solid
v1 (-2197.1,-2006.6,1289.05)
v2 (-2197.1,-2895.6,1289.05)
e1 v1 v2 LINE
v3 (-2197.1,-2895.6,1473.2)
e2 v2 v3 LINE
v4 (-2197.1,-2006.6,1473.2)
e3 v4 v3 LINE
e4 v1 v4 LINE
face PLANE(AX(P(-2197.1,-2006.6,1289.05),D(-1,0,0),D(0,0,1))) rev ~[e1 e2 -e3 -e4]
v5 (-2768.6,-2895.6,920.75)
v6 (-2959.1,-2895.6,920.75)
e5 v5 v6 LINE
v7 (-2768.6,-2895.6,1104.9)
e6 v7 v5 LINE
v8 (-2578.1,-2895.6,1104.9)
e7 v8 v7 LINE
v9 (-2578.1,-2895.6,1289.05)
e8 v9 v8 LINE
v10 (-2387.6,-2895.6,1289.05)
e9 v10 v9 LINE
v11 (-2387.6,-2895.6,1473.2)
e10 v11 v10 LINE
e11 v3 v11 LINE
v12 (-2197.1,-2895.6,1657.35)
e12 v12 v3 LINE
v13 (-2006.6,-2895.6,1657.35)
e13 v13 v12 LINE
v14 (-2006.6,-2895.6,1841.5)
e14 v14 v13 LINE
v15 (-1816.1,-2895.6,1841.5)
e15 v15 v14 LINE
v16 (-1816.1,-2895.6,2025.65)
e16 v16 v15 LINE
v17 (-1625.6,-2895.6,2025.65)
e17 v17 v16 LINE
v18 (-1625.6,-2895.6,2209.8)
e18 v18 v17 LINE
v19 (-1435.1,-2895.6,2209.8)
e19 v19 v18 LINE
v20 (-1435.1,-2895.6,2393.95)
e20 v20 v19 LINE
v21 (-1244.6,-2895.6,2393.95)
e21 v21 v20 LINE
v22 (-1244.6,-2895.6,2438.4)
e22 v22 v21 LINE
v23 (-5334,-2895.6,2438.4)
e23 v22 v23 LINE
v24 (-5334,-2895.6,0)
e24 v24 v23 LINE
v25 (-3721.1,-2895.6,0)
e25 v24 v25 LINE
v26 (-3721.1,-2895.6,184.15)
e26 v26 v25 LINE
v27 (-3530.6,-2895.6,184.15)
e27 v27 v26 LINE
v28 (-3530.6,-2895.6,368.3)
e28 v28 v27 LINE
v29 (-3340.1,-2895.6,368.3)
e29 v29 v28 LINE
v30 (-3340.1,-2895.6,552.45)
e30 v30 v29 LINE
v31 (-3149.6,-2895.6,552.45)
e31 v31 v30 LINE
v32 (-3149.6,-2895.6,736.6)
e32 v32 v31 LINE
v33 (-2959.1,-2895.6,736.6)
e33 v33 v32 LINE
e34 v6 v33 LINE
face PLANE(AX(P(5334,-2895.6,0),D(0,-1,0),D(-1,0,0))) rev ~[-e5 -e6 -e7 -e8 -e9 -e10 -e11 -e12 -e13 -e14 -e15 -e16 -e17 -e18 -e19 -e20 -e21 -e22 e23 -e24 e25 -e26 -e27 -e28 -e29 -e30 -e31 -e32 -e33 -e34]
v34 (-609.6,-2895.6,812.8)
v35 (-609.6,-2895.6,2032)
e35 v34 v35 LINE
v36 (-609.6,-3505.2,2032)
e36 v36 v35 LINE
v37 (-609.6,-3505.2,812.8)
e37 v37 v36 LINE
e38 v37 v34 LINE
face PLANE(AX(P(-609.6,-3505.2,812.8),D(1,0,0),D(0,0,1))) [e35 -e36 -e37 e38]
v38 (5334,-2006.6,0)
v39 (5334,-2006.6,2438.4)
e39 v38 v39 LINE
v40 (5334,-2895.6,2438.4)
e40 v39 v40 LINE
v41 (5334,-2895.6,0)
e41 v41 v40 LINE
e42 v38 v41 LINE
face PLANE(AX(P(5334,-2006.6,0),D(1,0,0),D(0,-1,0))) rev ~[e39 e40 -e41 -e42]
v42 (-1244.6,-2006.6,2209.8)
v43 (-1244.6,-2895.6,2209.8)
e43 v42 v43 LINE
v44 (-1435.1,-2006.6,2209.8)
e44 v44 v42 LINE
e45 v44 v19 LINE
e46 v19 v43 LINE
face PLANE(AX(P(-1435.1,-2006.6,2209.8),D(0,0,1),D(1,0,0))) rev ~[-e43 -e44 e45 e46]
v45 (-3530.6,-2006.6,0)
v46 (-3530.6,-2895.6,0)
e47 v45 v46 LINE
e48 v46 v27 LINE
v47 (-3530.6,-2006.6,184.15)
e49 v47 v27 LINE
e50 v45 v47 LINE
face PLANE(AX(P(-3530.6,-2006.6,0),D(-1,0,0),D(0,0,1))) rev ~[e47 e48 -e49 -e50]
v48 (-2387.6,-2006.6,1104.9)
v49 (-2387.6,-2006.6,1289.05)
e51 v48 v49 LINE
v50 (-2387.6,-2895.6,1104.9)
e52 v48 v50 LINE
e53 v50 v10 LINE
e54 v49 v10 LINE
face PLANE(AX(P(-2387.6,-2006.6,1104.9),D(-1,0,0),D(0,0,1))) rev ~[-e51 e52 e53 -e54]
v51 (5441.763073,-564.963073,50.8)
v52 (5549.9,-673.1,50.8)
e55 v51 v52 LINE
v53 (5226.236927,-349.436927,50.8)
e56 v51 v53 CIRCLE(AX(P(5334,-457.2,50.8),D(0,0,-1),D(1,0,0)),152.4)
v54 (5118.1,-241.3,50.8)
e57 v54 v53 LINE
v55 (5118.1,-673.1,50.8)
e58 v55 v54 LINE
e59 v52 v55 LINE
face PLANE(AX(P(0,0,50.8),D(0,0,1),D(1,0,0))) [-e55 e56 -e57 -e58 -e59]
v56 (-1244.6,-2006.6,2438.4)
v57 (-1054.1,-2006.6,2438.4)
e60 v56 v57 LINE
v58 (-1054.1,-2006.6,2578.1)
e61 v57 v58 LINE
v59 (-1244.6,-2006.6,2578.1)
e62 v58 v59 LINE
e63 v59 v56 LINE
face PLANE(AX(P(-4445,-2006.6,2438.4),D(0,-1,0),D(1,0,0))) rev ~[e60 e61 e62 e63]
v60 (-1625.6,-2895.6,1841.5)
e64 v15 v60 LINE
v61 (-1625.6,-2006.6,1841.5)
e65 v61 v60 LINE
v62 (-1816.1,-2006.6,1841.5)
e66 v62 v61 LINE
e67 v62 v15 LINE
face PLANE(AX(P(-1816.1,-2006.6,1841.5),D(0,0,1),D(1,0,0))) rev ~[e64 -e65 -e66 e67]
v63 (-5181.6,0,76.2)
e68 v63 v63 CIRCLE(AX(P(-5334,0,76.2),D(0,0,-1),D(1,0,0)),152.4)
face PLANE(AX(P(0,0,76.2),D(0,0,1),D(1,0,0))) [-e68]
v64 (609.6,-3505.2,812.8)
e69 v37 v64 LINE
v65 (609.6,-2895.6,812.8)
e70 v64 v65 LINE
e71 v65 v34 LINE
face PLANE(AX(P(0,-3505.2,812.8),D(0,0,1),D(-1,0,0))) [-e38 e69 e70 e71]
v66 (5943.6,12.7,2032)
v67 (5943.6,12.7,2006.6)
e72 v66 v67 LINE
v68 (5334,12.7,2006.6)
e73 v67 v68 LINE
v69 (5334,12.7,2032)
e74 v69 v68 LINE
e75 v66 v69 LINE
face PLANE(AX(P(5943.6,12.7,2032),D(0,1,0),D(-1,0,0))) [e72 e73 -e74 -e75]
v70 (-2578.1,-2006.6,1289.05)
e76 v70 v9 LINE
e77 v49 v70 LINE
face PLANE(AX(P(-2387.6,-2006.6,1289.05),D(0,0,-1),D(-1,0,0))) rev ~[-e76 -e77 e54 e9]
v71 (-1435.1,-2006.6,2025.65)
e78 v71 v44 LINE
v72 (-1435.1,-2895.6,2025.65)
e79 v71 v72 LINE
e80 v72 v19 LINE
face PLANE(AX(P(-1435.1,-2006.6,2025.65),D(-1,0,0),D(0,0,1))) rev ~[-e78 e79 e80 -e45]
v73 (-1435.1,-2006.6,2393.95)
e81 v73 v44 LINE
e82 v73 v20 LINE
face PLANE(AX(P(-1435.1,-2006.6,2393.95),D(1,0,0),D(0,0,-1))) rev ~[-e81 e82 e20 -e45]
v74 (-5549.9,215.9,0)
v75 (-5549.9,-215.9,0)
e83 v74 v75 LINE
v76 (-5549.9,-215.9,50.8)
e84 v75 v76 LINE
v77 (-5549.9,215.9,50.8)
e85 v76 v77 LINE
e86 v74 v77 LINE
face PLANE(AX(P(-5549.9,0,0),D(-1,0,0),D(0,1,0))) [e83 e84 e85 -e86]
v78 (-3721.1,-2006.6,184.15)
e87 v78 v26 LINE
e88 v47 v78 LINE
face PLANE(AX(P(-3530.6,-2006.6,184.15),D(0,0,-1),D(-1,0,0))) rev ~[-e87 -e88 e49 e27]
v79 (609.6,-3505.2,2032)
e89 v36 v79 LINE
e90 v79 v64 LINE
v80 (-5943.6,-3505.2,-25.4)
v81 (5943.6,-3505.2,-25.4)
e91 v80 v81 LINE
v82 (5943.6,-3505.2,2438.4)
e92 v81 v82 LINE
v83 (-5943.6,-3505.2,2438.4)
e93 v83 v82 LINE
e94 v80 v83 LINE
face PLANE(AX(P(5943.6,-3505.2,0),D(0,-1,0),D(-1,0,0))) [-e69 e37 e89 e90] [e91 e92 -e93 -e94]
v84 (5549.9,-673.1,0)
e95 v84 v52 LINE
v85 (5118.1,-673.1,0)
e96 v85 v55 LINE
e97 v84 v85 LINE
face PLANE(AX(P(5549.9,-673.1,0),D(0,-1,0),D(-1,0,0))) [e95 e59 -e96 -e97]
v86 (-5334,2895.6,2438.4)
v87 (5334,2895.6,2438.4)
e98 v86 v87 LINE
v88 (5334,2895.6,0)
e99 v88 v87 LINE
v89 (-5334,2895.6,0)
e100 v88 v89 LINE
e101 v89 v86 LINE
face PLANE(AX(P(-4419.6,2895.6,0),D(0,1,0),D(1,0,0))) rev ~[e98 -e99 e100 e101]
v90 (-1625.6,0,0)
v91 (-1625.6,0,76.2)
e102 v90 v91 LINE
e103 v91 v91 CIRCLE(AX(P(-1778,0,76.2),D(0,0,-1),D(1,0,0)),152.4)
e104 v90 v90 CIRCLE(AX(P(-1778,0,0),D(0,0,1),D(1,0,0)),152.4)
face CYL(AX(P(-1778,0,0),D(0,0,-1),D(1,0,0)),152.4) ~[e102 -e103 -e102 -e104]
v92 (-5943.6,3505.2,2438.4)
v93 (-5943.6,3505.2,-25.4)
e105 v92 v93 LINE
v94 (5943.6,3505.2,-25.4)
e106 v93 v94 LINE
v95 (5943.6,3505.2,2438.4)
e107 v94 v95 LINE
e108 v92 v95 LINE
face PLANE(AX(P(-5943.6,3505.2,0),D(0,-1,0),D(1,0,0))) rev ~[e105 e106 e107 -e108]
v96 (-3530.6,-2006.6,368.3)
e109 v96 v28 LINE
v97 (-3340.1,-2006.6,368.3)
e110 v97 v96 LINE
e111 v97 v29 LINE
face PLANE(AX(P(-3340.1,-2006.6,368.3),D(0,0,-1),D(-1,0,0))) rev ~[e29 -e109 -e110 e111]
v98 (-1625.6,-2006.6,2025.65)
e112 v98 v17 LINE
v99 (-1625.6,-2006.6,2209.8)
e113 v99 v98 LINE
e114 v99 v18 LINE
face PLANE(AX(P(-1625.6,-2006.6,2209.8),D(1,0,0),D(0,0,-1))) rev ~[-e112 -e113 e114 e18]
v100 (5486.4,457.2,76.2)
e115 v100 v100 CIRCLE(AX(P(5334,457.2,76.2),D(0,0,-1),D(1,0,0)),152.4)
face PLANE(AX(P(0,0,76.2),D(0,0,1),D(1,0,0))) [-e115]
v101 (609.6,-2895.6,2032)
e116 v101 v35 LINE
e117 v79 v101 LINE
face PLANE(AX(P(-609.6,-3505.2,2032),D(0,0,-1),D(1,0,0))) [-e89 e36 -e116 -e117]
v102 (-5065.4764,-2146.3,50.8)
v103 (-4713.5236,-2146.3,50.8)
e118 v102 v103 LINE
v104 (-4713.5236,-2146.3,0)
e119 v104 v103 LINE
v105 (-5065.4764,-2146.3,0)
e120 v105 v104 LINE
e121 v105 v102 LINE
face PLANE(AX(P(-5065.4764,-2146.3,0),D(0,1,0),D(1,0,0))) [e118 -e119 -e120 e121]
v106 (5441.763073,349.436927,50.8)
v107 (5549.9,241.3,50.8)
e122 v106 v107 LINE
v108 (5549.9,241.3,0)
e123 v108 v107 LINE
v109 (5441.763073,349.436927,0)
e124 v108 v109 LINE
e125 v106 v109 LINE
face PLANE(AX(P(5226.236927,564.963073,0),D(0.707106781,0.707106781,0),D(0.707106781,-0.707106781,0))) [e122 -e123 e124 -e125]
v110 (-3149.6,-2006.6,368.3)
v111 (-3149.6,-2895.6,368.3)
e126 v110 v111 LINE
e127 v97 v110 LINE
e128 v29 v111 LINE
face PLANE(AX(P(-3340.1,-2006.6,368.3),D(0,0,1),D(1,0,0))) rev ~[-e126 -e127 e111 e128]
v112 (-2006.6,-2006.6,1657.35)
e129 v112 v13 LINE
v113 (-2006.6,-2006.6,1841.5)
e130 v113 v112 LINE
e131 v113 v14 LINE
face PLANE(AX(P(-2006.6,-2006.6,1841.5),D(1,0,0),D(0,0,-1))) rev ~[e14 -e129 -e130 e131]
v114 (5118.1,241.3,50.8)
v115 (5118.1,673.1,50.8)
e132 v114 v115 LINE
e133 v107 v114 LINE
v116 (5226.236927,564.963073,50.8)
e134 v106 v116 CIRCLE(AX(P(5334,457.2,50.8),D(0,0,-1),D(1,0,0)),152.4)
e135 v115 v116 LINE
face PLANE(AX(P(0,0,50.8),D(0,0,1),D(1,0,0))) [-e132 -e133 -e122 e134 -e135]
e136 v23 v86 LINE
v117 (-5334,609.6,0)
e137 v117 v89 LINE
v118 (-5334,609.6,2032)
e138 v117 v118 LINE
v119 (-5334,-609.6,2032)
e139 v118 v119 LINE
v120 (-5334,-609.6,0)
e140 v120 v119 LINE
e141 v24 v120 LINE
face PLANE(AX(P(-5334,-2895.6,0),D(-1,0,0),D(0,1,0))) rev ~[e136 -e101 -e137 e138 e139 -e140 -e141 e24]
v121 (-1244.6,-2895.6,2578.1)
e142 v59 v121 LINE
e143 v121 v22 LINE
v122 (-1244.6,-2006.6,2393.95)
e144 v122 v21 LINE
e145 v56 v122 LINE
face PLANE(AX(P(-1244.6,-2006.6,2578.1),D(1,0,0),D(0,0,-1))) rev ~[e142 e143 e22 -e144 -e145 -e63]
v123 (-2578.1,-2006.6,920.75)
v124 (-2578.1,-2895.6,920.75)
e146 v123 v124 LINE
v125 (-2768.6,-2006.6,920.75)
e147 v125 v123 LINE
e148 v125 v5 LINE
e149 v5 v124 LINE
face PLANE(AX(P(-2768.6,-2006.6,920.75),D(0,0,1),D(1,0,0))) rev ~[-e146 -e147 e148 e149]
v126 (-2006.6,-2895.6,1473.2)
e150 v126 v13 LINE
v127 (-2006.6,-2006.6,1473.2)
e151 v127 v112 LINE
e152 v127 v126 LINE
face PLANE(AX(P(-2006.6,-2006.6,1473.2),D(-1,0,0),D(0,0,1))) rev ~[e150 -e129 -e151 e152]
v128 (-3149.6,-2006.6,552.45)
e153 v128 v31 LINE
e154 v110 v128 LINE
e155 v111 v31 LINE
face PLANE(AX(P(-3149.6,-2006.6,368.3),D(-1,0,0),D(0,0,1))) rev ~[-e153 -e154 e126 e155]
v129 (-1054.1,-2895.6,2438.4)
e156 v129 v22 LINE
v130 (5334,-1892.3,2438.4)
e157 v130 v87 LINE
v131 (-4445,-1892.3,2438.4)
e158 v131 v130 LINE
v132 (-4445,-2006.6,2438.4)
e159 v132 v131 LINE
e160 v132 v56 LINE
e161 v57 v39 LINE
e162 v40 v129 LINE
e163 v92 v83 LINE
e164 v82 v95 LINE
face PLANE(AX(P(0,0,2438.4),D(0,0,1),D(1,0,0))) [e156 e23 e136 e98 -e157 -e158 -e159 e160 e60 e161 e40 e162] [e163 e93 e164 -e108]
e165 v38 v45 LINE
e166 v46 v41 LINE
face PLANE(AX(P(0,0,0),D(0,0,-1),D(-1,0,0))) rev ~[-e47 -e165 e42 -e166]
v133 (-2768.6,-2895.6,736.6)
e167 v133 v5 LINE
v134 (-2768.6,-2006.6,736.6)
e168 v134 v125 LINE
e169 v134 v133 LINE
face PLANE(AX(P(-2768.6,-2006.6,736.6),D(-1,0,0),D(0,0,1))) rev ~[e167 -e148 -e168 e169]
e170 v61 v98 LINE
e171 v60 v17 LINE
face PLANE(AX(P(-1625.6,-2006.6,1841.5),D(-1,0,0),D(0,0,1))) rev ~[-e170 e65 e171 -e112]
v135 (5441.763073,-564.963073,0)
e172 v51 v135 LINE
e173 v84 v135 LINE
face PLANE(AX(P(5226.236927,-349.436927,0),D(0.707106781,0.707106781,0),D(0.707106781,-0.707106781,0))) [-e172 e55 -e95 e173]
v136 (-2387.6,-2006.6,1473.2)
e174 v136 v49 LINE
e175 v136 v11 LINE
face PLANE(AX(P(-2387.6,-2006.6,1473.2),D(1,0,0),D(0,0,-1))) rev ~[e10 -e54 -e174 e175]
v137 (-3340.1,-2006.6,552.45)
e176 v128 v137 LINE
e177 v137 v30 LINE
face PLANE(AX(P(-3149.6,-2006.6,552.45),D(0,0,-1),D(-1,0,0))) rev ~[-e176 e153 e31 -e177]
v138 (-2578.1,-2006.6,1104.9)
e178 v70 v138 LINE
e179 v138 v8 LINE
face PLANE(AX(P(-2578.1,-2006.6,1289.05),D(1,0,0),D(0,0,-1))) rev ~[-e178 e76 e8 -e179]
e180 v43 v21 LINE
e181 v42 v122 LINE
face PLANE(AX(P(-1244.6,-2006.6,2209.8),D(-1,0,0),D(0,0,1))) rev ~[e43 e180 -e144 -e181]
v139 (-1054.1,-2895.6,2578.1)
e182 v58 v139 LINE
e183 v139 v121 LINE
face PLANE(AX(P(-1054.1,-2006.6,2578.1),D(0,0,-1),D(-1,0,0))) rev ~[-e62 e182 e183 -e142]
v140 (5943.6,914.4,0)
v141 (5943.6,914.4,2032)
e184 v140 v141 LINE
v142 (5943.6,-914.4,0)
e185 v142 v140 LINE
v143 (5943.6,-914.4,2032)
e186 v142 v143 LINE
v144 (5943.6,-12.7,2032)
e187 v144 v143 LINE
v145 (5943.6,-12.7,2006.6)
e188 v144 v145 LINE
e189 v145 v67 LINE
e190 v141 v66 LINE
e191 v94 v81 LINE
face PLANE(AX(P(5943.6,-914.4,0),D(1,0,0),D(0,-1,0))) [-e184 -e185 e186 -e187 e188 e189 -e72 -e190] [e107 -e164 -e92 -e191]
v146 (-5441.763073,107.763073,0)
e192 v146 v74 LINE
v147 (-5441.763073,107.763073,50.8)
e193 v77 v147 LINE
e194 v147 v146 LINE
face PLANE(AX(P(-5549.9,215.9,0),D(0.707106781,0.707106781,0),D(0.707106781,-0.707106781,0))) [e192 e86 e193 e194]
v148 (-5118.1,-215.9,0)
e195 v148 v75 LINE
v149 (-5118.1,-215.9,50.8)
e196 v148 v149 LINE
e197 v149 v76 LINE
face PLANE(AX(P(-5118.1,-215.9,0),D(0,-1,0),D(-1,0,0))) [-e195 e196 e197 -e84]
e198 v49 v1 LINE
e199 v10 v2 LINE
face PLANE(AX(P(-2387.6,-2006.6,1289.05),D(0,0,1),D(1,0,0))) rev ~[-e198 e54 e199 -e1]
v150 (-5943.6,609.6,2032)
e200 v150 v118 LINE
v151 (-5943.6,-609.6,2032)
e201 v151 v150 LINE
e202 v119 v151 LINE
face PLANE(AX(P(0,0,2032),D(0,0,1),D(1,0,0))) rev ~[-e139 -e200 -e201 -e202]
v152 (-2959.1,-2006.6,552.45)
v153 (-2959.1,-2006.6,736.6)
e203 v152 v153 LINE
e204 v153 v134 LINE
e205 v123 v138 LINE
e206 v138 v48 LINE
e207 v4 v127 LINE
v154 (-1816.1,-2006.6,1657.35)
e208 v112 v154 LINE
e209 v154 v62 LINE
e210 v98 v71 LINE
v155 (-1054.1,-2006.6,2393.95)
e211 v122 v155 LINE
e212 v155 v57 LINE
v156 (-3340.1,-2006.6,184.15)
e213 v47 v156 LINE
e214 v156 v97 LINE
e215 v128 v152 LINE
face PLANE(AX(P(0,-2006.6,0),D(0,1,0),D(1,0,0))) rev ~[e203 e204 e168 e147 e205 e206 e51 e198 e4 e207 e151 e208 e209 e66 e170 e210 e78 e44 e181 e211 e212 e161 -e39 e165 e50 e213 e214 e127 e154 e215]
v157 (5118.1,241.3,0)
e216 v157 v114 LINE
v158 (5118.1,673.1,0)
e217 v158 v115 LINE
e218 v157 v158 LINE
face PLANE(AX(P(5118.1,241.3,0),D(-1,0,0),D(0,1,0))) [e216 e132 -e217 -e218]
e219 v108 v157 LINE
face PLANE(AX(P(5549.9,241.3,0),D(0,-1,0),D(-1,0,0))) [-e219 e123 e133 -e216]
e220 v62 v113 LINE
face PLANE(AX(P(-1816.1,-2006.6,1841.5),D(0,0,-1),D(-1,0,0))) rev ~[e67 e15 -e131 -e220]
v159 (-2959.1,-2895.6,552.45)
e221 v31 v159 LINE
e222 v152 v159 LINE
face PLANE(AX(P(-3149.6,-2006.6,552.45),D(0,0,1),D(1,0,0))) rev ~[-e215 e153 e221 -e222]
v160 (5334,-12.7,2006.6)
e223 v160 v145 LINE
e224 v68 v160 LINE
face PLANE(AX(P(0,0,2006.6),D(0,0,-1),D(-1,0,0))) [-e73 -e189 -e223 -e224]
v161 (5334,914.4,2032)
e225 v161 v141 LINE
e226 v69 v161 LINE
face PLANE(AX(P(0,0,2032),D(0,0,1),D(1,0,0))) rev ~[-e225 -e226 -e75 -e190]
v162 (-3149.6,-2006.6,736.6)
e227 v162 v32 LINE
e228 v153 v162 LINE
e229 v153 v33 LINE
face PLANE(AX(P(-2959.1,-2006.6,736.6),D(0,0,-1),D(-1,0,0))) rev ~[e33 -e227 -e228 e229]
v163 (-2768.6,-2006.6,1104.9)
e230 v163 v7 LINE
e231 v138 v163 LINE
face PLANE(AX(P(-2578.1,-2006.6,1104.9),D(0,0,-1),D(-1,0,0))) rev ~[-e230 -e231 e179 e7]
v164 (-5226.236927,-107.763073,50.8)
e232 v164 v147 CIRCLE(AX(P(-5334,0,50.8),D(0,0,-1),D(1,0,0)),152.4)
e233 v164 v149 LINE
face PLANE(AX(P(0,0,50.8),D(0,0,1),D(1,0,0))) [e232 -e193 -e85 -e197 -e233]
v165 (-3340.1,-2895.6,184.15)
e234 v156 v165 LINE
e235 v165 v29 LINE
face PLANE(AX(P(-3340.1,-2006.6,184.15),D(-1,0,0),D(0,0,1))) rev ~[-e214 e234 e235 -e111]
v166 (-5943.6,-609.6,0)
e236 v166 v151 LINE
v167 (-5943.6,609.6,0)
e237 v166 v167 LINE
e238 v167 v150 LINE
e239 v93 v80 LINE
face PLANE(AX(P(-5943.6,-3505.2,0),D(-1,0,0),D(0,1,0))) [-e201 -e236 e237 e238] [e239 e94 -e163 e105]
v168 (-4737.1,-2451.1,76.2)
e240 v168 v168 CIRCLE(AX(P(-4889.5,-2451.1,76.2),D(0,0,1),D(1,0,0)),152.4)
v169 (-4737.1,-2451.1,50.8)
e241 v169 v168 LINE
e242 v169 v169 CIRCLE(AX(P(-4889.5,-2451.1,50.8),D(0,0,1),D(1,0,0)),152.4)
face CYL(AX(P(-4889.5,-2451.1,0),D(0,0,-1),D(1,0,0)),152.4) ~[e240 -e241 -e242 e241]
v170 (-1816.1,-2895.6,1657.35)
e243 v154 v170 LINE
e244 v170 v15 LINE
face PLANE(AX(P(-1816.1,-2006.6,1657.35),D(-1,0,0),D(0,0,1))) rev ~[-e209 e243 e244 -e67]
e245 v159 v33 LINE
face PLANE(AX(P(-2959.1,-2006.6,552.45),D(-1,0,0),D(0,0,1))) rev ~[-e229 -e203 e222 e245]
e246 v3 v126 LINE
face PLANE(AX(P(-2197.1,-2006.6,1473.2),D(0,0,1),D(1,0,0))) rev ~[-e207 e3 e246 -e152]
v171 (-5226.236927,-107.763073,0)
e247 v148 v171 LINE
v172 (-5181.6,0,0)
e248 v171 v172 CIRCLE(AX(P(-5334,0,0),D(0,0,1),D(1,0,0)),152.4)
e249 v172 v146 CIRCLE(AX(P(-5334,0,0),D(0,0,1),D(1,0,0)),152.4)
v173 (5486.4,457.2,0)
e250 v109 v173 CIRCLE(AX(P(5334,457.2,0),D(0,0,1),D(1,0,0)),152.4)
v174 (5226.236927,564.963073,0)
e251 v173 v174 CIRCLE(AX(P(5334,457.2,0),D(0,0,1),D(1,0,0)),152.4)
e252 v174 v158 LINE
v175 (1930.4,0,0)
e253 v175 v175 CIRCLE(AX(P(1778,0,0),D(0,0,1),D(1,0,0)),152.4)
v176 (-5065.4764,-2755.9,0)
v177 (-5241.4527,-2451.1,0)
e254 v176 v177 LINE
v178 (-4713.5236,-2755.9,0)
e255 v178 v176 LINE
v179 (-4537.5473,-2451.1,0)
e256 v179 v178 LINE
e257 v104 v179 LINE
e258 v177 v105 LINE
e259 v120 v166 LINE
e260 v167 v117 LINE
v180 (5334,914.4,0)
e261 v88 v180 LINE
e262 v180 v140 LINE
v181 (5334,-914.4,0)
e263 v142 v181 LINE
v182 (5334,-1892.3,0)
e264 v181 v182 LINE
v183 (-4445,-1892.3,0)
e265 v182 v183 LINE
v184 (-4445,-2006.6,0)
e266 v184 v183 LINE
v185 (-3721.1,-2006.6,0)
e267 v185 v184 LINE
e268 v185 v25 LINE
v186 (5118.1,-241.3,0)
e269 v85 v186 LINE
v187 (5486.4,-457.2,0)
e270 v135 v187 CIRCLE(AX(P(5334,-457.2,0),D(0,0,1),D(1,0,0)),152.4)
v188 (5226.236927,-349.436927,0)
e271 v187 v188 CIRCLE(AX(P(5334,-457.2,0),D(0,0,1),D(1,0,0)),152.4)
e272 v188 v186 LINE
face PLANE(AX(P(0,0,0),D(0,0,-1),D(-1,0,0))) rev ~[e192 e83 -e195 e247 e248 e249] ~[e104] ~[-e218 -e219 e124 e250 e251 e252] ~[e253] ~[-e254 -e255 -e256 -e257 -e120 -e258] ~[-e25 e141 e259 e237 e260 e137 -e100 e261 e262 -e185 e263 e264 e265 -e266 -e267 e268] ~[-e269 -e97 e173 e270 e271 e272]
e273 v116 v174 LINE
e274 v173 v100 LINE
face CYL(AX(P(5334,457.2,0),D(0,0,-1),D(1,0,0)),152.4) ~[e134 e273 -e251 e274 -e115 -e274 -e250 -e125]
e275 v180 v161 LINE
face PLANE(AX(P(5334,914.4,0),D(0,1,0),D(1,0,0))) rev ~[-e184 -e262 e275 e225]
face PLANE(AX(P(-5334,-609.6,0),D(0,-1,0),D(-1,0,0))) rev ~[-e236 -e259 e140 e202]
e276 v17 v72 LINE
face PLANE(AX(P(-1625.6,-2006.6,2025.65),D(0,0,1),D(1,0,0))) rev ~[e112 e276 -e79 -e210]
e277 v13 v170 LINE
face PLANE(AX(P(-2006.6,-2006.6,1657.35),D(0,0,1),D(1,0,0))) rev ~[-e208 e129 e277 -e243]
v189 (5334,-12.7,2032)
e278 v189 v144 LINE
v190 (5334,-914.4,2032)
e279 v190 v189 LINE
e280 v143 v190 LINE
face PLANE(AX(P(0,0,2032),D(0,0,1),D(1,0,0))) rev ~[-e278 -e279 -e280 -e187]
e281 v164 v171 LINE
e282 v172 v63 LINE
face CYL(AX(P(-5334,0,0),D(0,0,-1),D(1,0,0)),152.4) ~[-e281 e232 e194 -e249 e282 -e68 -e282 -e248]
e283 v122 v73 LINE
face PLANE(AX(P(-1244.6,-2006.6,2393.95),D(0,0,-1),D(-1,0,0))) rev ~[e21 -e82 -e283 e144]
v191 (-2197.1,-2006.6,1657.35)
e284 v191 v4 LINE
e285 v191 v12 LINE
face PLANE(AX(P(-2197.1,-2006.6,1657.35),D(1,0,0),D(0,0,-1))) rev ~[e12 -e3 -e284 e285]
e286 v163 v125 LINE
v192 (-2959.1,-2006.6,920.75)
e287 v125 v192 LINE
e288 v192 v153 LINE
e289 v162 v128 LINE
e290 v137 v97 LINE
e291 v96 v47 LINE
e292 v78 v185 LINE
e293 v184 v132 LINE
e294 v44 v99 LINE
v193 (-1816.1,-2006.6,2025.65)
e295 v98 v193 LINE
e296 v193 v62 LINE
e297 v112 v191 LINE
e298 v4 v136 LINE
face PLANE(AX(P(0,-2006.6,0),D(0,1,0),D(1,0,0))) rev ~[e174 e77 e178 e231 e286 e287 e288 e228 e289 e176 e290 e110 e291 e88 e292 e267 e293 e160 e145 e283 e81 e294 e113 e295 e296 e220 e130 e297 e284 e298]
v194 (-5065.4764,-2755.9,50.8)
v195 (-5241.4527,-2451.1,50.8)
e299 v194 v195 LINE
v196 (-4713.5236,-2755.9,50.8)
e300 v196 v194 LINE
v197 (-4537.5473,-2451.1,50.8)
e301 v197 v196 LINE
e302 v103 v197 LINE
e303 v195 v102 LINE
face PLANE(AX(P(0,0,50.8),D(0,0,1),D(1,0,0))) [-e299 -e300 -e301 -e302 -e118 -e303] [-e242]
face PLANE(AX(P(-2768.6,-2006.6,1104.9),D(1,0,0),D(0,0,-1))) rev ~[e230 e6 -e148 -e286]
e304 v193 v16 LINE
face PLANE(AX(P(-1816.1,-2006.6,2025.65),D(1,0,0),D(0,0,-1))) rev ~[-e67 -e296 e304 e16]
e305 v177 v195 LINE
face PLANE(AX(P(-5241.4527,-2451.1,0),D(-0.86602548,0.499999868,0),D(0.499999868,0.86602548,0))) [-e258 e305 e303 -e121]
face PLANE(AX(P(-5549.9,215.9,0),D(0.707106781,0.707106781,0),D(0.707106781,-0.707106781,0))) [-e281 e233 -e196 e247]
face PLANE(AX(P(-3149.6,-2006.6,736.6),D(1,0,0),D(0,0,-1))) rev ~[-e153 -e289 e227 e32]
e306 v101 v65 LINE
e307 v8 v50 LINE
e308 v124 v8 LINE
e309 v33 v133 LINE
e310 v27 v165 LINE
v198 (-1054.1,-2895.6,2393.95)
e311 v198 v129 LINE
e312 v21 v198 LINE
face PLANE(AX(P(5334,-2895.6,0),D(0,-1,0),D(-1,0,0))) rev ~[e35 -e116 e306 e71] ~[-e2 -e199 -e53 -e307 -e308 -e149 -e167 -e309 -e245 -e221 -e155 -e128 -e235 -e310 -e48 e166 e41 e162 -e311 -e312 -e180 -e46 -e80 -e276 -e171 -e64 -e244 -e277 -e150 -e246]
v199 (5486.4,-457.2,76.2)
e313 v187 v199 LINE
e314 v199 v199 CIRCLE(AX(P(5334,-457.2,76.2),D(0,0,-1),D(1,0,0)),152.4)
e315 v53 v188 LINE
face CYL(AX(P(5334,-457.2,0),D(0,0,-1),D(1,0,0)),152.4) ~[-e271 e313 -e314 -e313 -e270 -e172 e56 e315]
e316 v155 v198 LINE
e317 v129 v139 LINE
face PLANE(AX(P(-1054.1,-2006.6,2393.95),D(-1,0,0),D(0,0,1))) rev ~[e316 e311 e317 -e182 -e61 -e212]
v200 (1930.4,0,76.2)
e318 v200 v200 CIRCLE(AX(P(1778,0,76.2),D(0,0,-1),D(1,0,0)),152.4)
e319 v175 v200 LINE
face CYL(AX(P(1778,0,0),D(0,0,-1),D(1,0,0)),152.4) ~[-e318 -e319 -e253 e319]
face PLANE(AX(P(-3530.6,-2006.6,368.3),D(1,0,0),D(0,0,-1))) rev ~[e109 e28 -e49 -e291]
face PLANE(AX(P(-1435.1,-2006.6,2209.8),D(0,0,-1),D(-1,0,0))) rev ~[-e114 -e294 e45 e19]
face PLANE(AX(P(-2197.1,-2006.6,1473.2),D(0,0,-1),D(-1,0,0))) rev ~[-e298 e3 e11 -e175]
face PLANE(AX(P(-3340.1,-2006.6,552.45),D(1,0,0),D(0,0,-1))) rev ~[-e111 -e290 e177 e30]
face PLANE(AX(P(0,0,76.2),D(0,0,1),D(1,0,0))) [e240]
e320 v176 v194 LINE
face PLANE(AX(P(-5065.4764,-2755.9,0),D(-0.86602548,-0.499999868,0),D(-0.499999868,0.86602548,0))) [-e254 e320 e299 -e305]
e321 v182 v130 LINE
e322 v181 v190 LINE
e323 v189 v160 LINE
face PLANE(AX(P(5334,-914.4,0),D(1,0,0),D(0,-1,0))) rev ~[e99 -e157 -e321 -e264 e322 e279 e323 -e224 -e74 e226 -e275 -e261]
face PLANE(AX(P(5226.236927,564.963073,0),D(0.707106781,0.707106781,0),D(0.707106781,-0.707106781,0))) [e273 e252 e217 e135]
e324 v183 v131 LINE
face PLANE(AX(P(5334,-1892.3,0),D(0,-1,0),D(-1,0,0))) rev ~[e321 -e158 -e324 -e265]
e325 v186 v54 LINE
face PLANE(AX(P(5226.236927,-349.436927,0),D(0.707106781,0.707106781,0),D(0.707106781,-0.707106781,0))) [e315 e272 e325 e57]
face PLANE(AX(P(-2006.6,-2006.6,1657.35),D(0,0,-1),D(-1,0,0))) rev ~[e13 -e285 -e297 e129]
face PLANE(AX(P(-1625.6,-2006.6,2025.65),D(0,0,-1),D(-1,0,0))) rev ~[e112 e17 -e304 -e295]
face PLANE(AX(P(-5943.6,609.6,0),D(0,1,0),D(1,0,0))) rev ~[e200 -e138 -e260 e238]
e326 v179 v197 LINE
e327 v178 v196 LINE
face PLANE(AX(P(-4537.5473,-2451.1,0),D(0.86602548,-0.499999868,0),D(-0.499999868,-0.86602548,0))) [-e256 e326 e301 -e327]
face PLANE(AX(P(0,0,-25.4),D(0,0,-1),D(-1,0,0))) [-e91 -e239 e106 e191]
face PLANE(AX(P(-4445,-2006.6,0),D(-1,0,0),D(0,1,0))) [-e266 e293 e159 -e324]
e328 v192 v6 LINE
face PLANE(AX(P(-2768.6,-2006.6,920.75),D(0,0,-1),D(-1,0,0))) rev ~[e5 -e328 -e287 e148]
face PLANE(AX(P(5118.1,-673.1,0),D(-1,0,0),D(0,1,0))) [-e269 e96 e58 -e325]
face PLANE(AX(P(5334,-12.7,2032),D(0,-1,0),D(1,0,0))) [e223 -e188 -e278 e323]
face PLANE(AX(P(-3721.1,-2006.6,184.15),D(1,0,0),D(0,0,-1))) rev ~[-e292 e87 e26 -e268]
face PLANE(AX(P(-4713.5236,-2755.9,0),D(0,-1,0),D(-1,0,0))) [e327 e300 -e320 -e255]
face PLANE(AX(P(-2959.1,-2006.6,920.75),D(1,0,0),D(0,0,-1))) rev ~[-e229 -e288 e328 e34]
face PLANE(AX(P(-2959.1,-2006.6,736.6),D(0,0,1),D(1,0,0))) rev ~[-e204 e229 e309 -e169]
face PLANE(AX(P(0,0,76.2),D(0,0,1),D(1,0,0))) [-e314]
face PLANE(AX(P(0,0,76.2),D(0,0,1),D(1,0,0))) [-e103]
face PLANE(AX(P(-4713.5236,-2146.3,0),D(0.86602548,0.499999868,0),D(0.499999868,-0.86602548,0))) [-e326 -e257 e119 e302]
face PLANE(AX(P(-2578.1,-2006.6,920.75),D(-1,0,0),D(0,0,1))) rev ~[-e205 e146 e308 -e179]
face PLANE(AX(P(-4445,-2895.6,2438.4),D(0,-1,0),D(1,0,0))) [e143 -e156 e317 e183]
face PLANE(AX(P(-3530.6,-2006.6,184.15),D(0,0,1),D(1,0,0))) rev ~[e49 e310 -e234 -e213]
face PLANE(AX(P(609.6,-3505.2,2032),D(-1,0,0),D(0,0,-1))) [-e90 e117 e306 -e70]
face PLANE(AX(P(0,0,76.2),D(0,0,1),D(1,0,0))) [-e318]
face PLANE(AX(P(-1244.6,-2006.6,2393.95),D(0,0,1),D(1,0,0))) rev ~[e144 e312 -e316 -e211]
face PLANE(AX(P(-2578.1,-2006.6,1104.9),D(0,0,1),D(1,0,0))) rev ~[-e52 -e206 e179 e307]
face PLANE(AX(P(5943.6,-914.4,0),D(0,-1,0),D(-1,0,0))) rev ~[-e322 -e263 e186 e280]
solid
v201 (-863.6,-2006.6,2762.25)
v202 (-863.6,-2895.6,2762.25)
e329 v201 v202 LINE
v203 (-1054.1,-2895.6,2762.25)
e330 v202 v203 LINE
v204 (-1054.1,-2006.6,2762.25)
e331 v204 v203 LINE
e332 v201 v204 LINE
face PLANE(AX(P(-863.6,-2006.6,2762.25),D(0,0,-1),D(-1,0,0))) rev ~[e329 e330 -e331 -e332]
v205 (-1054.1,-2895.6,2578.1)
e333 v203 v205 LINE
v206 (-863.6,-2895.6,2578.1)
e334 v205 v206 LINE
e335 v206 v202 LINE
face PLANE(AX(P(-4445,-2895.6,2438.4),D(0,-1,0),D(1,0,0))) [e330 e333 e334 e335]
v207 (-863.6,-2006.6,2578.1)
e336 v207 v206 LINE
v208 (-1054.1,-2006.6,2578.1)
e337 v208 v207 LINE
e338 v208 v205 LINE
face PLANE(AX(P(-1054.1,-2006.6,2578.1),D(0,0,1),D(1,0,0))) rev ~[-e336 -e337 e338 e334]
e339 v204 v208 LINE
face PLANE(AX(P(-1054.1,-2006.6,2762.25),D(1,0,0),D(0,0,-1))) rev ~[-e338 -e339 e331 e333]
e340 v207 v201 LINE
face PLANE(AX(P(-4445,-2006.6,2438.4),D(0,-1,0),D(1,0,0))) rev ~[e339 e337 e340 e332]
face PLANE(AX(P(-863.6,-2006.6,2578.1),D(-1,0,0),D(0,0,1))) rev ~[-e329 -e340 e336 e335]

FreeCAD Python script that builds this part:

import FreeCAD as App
import Part
import Sketcher
Q = App.Units.Quantity


def add_polygon(sketch, points):
    """Adds a closed chain of lines whose ends are joined by coincident constraints."""
    first, n = sketch.GeometryCount, len(points)
    for a, b in zip(points, points[1:] + points[:1]):
        sketch.addGeometry(Part.LineSegment(App.Vector(*a, 0), App.Vector(*b, 0)), False)
    for i in range(n):
        sketch.addConstraint(Sketcher.Constraint("Coincident", first + i, 2, first + (i + 1) % n, 1))

doc = App.newDocument("Part")
params = doc.addObject("Spreadsheet::Sheet", "Params")
for row, (alias, value) in enumerate([
    ("sketch1_width", "24 in"),
    ("sketch1_width2", "468 in"),
    ("sketch1_height", "35 in"),
    ("sketch1_height2", "114 in"),
    ("sketch1_height3", "102 in"),
    ("pad1_length", "96 in"),
    ("sketch2_width", "468 in"),
    ("sketch2_height", "276 in"),
    ("pad2_length", "1 in"),
    ("sketch3_width", "24 in"),
    ("sketch3_height", "72 in"),
    ("sketch3_height2", "48 in"),
    ("pad3_length", "16 in"),
    ("sketch4_width", "7.5 in"),
    ("sketch4_height", "7.25 in"),
    ("pad4_length", "35 in"),
    ("sketch5_width", "48 in"),
    ("pocket1_length", "24 in"),
    ("sketch6_height", "1 in"),
    ("sketch6_width", "24 in"),
    ("pad5_length", "1 in"),
    ("sketch7_diameter", "12 in"),
    ("sketch7_width", "17 in"),
    ("pad6_length", "2 in"),
    ("sketch8_diameter", "12 in"),
    ("pad7_length", "3 in"),
], start=1):
    params.set(f"A{row}", alias)
    params.set(f"B{row}", "=" + value)
    params.setAlias(f"B{row}", alias)

body = doc.addObject("PartDesign::Body", "Body")
body.AllowCompound = True

# Sketch on XY plane
sketch1 = body.newObject("Sketcher::SketchObject", "Sketch")
sketch1.AttachmentSupport = (doc.getObject("XY_Plane"), [""])
sketch1.MapMode = "FlatFace"
add_polygon(sketch1, [(5334, -1892.3), (-4445, -1892.3), (-4445, -2006.6), (5334, -2006.6), (5334, -2895.6), (-5334, -2895.6), (-5334, -609.6), (-5943.6, -609.6), (-5943.6, -3505.2), (5943.6, -3505.2), (5943.6, -914.4), (5334, -914.4)])  # lines 0-11
add_polygon(sketch1, [(-5943.6, 3505.2), (-5943.6, 609.6), (-5334, 609.6), (-5334, 2895.6), (5334, 2895.6), (5334, 914.4), (5943.6, 914.4), (5943.6, 3505.2)])  # lines 12-19
sketch1.addConstraint([
    Sketcher.Constraint("Horizontal", 0),
    Sketcher.Constraint("Vertical", 1),
    Sketcher.Constraint("Horizontal", 2),
    Sketcher.Constraint("Vertical", 3),
    Sketcher.Constraint("Horizontal", 4),
    Sketcher.Constraint("Vertical", 5),
    Sketcher.Constraint("Horizontal", 6),
    Sketcher.Constraint("Vertical", 7),
    Sketcher.Constraint("Horizontal", 8),
    Sketcher.Constraint("Vertical", 9),
    Sketcher.Constraint("Horizontal", 10),
    Sketcher.Constraint("Vertical", 11),
    Sketcher.Constraint("Vertical", 12),
    Sketcher.Constraint("Horizontal", 13),
    Sketcher.Constraint("Vertical", 14),
    Sketcher.Constraint("Horizontal", 15),
    Sketcher.Constraint("Vertical", 16),
    Sketcher.Constraint("Horizontal", 17),
    Sketcher.Constraint("Vertical", 18),
    Sketcher.Constraint("Horizontal", 19),
    Sketcher.Constraint("Symmetric", 3, 2, 14, 2, -1, 1),
    Sketcher.Constraint("Symmetric", 7, 2, 18, 2, -1, 1),
    Sketcher.Constraint("Symmetric", 6, 2, 12, 2, -1),
    Sketcher.Constraint("Symmetric", 10, 2, 16, 2, -1),
    Sketcher.Constraint("Vertical", 3, 2, 10, 2),
    Sketcher.Constraint("Vertical", 5, 2, 13, 2),
    Sketcher.Constraint("Vertical", 9, 2, 17, 2),
    Sketcher.Constraint("DistanceX", 6, 2, 6, 1, Q("24 in")),
    Sketcher.Constraint("DistanceX", 8, 1, 8, 2, Q("468 in")),
    Sketcher.Constraint("DistanceY", 3, 2, 3, 1, Q("35 in")),
    Sketcher.Constraint("DistanceY", 7, 2, 7, 1, Q("114 in")),
    Sketcher.Constraint("DistanceY", 9, 1, 9, 2, Q("102 in")),
    Sketcher.Constraint("DistanceY", 1, 2, 1, 1, Q("4.5 in")),
    Sketcher.Constraint("DistanceY", 3, 2, -1, 1, Q("114 in")),
    Sketcher.Constraint("DistanceY", 5, 2, -1, 1, Q("24 in")),
    Sketcher.Constraint("DistanceX", 4, 2, 1, 2, Q("35 in")),
])
sketch1.setExpression("Constraints[47]", "Params.sketch1_width")
sketch1.setExpression("Constraints[48]", "Params.sketch1_width2")
sketch1.setExpression("Constraints[49]", "Params.sketch1_height")
sketch1.setExpression("Constraints[50]", "Params.sketch1_height2")
sketch1.setExpression("Constraints[51]", "Params.sketch1_height3")
pad1 = body.newObject("PartDesign::Pad", "Pad")
pad1.Profile = sketch1
pad1.setExpression("Length", "Params.pad1_length")

# Sketch on XY plane
sketch2 = body.newObject("Sketcher::SketchObject", "Sketch001")
sketch2.AttachmentSupport = (doc.getObject("XY_Plane"), [""])
sketch2.MapMode = "FlatFace"
add_polygon(sketch2, [(-5943.6, 3505.2), (5943.6, 3505.2), (5943.6, -3505.2), (-5943.6, -3505.2)])  # lines 0-3
sketch2.addConstraint([
    Sketcher.Constraint("Horizontal", 0),
    Sketcher.Constraint("Vertical", 1),
    Sketcher.Constraint("Horizontal", 2),
    Sketcher.Constraint("Vertical", 3),
    Sketcher.Constraint("Symmetric", 0, 2, 2, 2, -1, 1),
    Sketcher.Constraint("DistanceX", 0, 1, 0, 2, Q("468 in")),
    Sketcher.Constraint("DistanceY", 1, 2, 1, 1, Q("276 in")),
])
sketch2.setExpression("Constraints[9]", "Params.sketch2_width")
sketch2.setExpression("Constraints[10]", "Params.sketch2_height")
pad2 = body.newObject("PartDesign::Pad", "Pad001")
pad2.Profile = sketch2
pad2.setExpression("Length", "Params.pad2_length")
pad2.Reversed = True

# Sketch on XY plane
sketch3 = body.newObject("Sketcher::SketchObject", "Sketch002")
sketch3.AttachmentSupport = (doc.getObject("XY_Plane"), [""])
sketch3.MapMode = "FlatFace"
sketch3.AttachmentOffset = App.Placement(App.Vector(0, 0, 96 * 25.4), App.Rotation())
add_polygon(sketch3, [(5943.6, -914.4), (5943.6, 914.4), (5334, 914.4), (5334, -914.4)])  # lines 0-3
add_polygon(sketch3, [(-5334, 609.6), (-5943.6, 609.6), (-5943.6, -609.6), (-5334, -609.6)])  # lines 4-7
sketch3.addConstraint([
    Sketcher.Constraint("Vertical", 0),
    Sketcher.Constraint("Horizontal", 1),
    Sketcher.Constraint("Vertical", 2),
    Sketcher.Constraint("Horizontal", 3),
    Sketcher.Constraint("Horizontal", 4),
    Sketcher.Constraint("Vertical", 5),
    Sketcher.Constraint("Horizontal", 6),
    Sketcher.Constraint("Vertical", 7),
    Sketcher.Constraint("Equal", 3, 4),
    Sketcher.Constraint("DistanceX", 1, 2, 1, 1, Q("24 in")),
    Sketcher.Constraint("DistanceY", 0, 1, 0, 2, Q("72 in")),
    Sketcher.Constraint("DistanceY", 5, 2, 5, 1, Q("48 in")),
    Sketcher.Constraint("DistanceX", -1, 1, 0, 2, Q("234 in")),
    Sketcher.Constraint("DistanceY", -1, 1, 0, 2, Q("36 in")),
    Sketcher.Constraint("DistanceX", 4, 2, -1, 1, Q("234 in")),
    Sketcher.Constraint("DistanceY", -1, 1, 4, 2, Q("24 in")),
])
sketch3.setExpression("Constraints[17]", "Params.sketch3_width")
sketch3.setExpression("Constraints[18]", "Params.sketch3_height")
sketch3.setExpression("Constraints[19]", "Params.sketch3_height2")
pad3 = body.newObject("PartDesign::Pad", "Pad002")
pad3.Profile = sketch3
pad3.setExpression("Length", "Params.pad3_length")
pad3.Reversed = True

# Sketch on XZ plane
sketch4 = body.newObject("Sketcher::SketchObject", "Sketch003")
sketch4.AttachmentSupport = (doc.getObject("XZ_Plane"), [""])
sketch4.MapMode = "FlatFace"
sketch4.AttachmentOffset = App.Placement(App.Vector(0, 0, 79 * 25.4), App.Rotation())
add_polygon(sketch4, [(-3721.1, 184.15), (-3721.1, 0), (-3530.6, 0), (-3530.6, 184.15)])  # lines 0-3
add_polygon(sketch4, [(-1054.1, 2762.25), (-1054.1, 2578.1), (-863.6, 2578.1), (-863.6, 2762.25)])  # lines 4-7
add_polygon(sketch4, [(-1244.6, 2578.1), (-1244.6, 2393.95), (-1054.1, 2393.95), (-1054.1, 2578.1)])  # lines 8-11
add_polygon(sketch4, [(-1435.1, 2393.95), (-1435.1, 2209.8), (-1244.6, 2209.8), (-1244.6, 2393.95)])  # lines 12-15
add_polygon(sketch4, [(-1625.6, 2209.8), (-1625.6, 2025.65), (-1435.1, 2025.65), (-1435.1, 2209.8)])  # lines 16-19
add_polygon(sketch4, [(-1816.1, 2025.65), (-1816.1, 1841.5), (-1625.6, 1841.5), (-1625.6, 2025.65)])  # lines 20-23
add_polygon(sketch4, [(-2006.6, 1841.5), (-2006.6, 1657.35), (-1816.1, 1657.35), (-1816.1, 1841.5)])  # lines 24-27
add_polygon(sketch4, [(-2197.1, 1657.35), (-2197.1, 1473.2), (-2006.6, 1473.2), (-2006.6, 1657.35)])  # lines 28-31
add_polygon(sketch4, [(-2387.6, 1473.2), (-2387.6, 1289.05), (-2197.1, 1289.05), (-2197.1, 1473.2)])  # lines 32-35
add_polygon(sketch4, [(-2578.1, 1289.05), (-2578.1, 1104.9), (-2387.6, 1104.9), (-2387.6, 1289.05)])  # lines 36-39
add_polygon(sketch4, [(-2768.6, 1104.9), (-2768.6, 920.75), (-2578.1, 920.75), (-2578.1, 1104.9)])  # lines 40-43
add_polygon(sketch4, [(-2959.1, 920.75), (-2959.1, 736.6), (-2768.6, 736.6), (-2768.6, 920.75)])  # lines 44-47
add_polygon(sketch4, [(-3149.6, 736.6), (-3149.6, 552.45), (-2959.1, 552.45), (-2959.1, 736.6)])  # lines 48-51
add_polygon(sketch4, [(-3340.1, 552.45), (-3340.1, 368.3), (-3149.6, 368.3), (-3149.6, 552.45)])  # lines 52-55
add_polygon(sketch4, [(-3530.6, 368.3), (-3530.6, 184.15), (-3340.1, 184.15), (-3340.1, 368.3)])  # lines 56-59
sketch4.addConstraint([
    Sketcher.Constraint("Vertical", 0),
    Sketcher.Constraint("Horizontal", 1),
    Sketcher.Constraint("Vertical", 2),
    Sketcher.Constraint("Horizontal", 3),
    Sketcher.Constraint("Vertical", 4),
    Sketcher.Constraint("Horizontal", 5),
    Sketcher.Constraint("Vertical", 6),
    Sketcher.Constraint("Horizontal", 7),
    Sketcher.Constraint("Vertical", 8),
    Sketcher.Constraint("Horizontal", 9),
    Sketcher.Constraint("Vertical", 10),
    Sketcher.Constraint("Horizontal", 11),
    Sketcher.Constraint("Vertical", 12),
    Sketcher.Constraint("Horizontal", 13),
    Sketcher.Constraint("Vertical", 14),
    Sketcher.Constraint("Horizontal", 15),
    Sketcher.Constraint("Vertical", 16),
    Sketcher.Constraint("Horizontal", 17),
    Sketcher.Constraint("Vertical", 18),
    Sketcher.Constraint("Horizontal", 19),
    Sketcher.Constraint("Vertical", 20),
    Sketcher.Constraint("Horizontal", 21),
    Sketcher.Constraint("Vertical", 22),
    Sketcher.Constraint("Horizontal", 23),
    Sketcher.Constraint("Vertical", 24),
    Sketcher.Constraint("Horizontal", 25),
    Sketcher.Constraint("Vertical", 26),
    Sketcher.Constraint("Horizontal", 27),
    Sketcher.Constraint("Vertical", 28),
    Sketcher.Constraint("Horizontal", 29),
    Sketcher.Constraint("Vertical", 30),
    Sketcher.Constraint("Horizontal", 31),
    Sketcher.Constraint("Vertical", 32),
    Sketcher.Constraint("Horizontal", 33),
    Sketcher.Constraint("Vertical", 34),
    Sketcher.Constraint("Horizontal", 35),
    Sketcher.Constraint("Vertical", 36),
    Sketcher.Constraint("Horizontal", 37),
    Sketcher.Constraint("Vertical", 38),
    Sketcher.Constraint("Horizontal", 39),
    Sketcher.Constraint("Vertical", 40),
    Sketcher.Constraint("Horizontal", 41),
    Sketcher.Constraint("Vertical", 42),
    Sketcher.Constraint("Horizontal", 43),
    Sketcher.Constraint("Vertical", 44),
    Sketcher.Constraint("Horizontal", 45),
    Sketcher.Constraint("Vertical", 46),
    Sketcher.Constraint("Horizontal", 47),
    Sketcher.Constraint("Vertical", 48),
    Sketcher.Constraint("Horizontal", 49),
    Sketcher.Constraint("Vertical", 50),
    Sketcher.Constraint("Horizontal", 51),
    Sketcher.Constraint("Vertical", 52),
    Sketcher.Constraint("Horizontal", 53),
    Sketcher.Constraint("Vertical", 54),
    Sketcher.Constraint("Horizontal", 55),
    Sketcher.Constraint("Vertical", 56),
    Sketcher.Constraint("Horizontal", 57),
    Sketcher.Constraint("Vertical", 58),
    Sketcher.Constraint("Horizontal", 59),
    Sketcher.Constraint("Coincident", 10, 2, 4, 2),
    Sketcher.Constraint("Coincident", 14, 2, 8, 2),
    Sketcher.Constraint("Coincident", 18, 2, 12, 2),
    Sketcher.Constraint("Coincident", 22, 2, 16, 2),
    Sketcher.Constraint("Coincident", 26, 2, 20, 2),
    Sketcher.Constraint("Coincident", 30, 2, 24, 2),
    Sketcher.Constraint("Coincident", 34, 2, 28, 2),
    Sketcher.Constraint("Coincident", 38, 2, 32, 2),
    Sketcher.Constraint("Coincident", 42, 2, 36, 2),
    Sketcher.Constraint("Coincident", 46, 2, 40, 2),
    Sketcher.Constraint("Coincident", 50, 2, 44, 2),
    Sketcher.Constraint("Coincident", 54, 2, 48, 2),
    Sketcher.Constraint("Coincident", 56, 2, 2, 2),
    Sketcher.Constraint("Coincident", 58, 2, 52, 2),
    Sketcher.Constraint("PointOnObject", 0, 2, -1),
    Sketcher.Constraint("Equal", 3, 5),
    Sketcher.Constraint("Equal", 7, 9),
    Sketcher.Constraint("Equal", 11, 13),
    Sketcher.Constraint("Equal", 15, 17),
    Sketcher.Constraint("Equal", 19, 21),
    Sketcher.Constraint("Equal", 23, 25),
    Sketcher.Constraint("Equal", 27, 29),
    Sketcher.Constraint("Equal", 31, 33),
    Sketcher.Constraint("Equal", 35, 37),
    Sketcher.Constraint("Equal", 39, 41),
    Sketcher.Constraint("Equal", 43, 45),
    Sketcher.Constraint("Equal", 47, 49),
    Sketcher.Constraint("Equal", 51, 53),
    Sketcher.Constraint("Equal", 55, 57),
    Sketcher.Constraint("Equal", 2, 4),
    Sketcher.Constraint("Equal", 6, 8),
    Sketcher.Constraint("Equal", 10, 12),
    Sketcher.Constraint("Equal", 14, 16),
    Sketcher.Constraint("Equal", 18, 20),
    Sketcher.Constraint("Equal", 22, 24),
    Sketcher.Constraint("Equal", 26, 28),
    Sketcher.Constraint("Equal", 30, 32),
    Sketcher.Constraint("Equal", 34, 36),
    Sketcher.Constraint("Equal", 38, 40),
    Sketcher.Constraint("Equal", 42, 44),
    Sketcher.Constraint("Equal", 46, 48),
    Sketcher.Constraint("Equal", 50, 52),
    Sketcher.Constraint("Equal", 54, 56),
    Sketcher.Constraint("DistanceX", 1, 1, 1, 2, Q("7.5 in")),
    Sketcher.Constraint("DistanceY", 0, 2, 0, 1, Q("7.25 in")),
    Sketcher.Constraint("DistanceX", 1, 2, -1, 1, Q("139 in")),
])
sketch4.setExpression("Constraints[163]", "Params.sketch4_width")
sketch4.setExpression("Constraints[164]", "Params.sketch4_height")
pad4 = body.newObject("PartDesign::Pad", "Pad003")
pad4.Profile = sketch4
pad4.setExpression("Length", "Params.pad4_length")

# Sketch on XZ plane
sketch5 = body.newObject("Sketcher::SketchObject", "Sketch004")
sketch5.AttachmentSupport = (doc.getObject("XZ_Plane"), [""])
sketch5.MapMode = "FlatFace"
sketch5.AttachmentOffset = App.Placement(App.Vector(0, 0, 138 * 25.4), App.Rotation())
add_polygon(sketch5, [(-609.6, 2032), (-609.6, 812.8), (609.6, 812.8), (609.6, 2032)])  # lines 0-3
sketch5.addConstraint([
    Sketcher.Constraint("Vertical", 0),
    Sketcher.Constraint("Horizontal", 1),
    Sketcher.Constraint("Vertical", 2),
    Sketcher.Constraint("Horizontal", 3),
    Sketcher.Constraint("Equal", 3, 0),
    Sketcher.Constraint("DistanceX", 1, 1, 1, 2, Q("48 in")),
    Sketcher.Constraint("DistanceY", -1, 1, 0, 2, Q("32 in")),
    Sketcher.Constraint("DistanceX", 0, 2, -1, 1, Q("24 in")),
])
sketch5.setExpression("Constraints[9]", "Params.sketch5_width")
pocket1 = body.newObject("PartDesign::Pocket", "Pocket")
pocket1.Profile = sketch5
pocket1.setExpression("Length", "Params.pocket1_length")

# Sketch on XY plane
sketch6 = body.newObject("Sketcher::SketchObject", "Sketch005")
sketch6.AttachmentSupport = (doc.getObject("XY_Plane"), [""])
sketch6.MapMode = "FlatFace"
sketch6.AttachmentOffset = App.Placement(App.Vector(0, 0, 80 * 25.4), App.Rotation())
add_polygon(sketch6, [(5943.6, -12.7), (5334, -12.7), (5334, 12.7), (5943.6, 12.7)])  # lines 0-3
sketch6.addConstraint([
    Sketcher.Constraint("Horizontal", 0),
    Sketcher.Constraint("Vertical", 1),
    Sketcher.Constraint("Horizontal", 2),
    Sketcher.Constraint("Vertical", 3),
    Sketcher.Constraint("DistanceY", 1, 1, 1, 2, Q("1 in")),
    Sketcher.Constraint("DistanceX", 0, 2, 0, 1, Q("24 in")),
    Sketcher.Constraint("DistanceX", -1, 1, 0, 2, Q("210 in")),
    Sketcher.Constraint("DistanceY", 0, 2, -1, 1, Q("0.5 in")),
])
sketch6.setExpression("Constraints[8]", "Params.sketch6_height")
sketch6.setExpression("Constraints[9]", "Params.sketch6_width")
pad5 = body.newObject("PartDesign::Pad", "Pad004")
pad5.Profile = sketch6
pad5.setExpression("Length", "Params.pad5_length")
pad5.Reversed = True

# Sketch on XY plane
sketch7 = body.newObject("Sketcher::SketchObject", "Sketch006")
sketch7.AttachmentSupport = (doc.getObject("XY_Plane"), [""])
sketch7.MapMode = "FlatFace"
add_polygon(sketch7, [(-5549.9, 215.9), (-5549.9, -215.9), (-5118.1, -215.9)])  # lines 0-2
add_polygon(sketch7, [(5118.1, 673.1), (5118.1, 241.3), (5549.9, 241.3)])  # lines 3-5
add_polygon(sketch7, [(5118.1, -241.3), (5118.1, -673.1), (5549.9, -673.1)])  # lines 6-8
add_polygon(sketch7, [(-4537.5473, -2451.1), (-4713.5236, -2146.3), (-5065.4764, -2146.3), (-5241.4527, -2451.1), (-5065.4764, -2755.9), (-4713.5236, -2755.9)])  # lines 9-14
sketch7.addGeometry(Part.Circle(App.Vector(-4889.5, -2451.1, 0), App.Vector(0, 0, 1), 152.4), False)  # 15
sketch7.addConstraint([
    Sketcher.Constraint("Vertical", 0),
    Sketcher.Constraint("Horizontal", 1),
    Sketcher.Constraint("Vertical", 3),
    Sketcher.Constraint("Horizontal", 4),
    Sketcher.Constraint("Vertical", 6),
    Sketcher.Constraint("Horizontal", 7),
    Sketcher.Constraint("Horizontal", 10),
    Sketcher.Constraint("Horizontal", 13),
    Sketcher.Constraint("Symmetric", 5, 2, 6, 2, -1),
    Sketcher.Constraint("Parallel", 2, 5),
    Sketcher.Constraint("Parallel", 5, 8),
    Sketcher.Constraint("Parallel", 9, 12),
    Sketcher.Constraint("Parallel", 11, 14),
    Sketcher.Constraint("Horizontal", 15, 3, 11, 2),
    Sketcher.Constraint("Horizontal", 11, 2, 14, 2),
    Sketcher.Constraint("Vertical", 4, 2, 7, 2),
    Sketcher.Constraint("Vertical", 10, 2, 12, 2),
    Sketcher.Constraint("Vertical", 9, 2, 13, 2),
    Sketcher.Constraint("Equal", 1, 4),
    Sketcher.Constraint("Equal", 7, 0),
    Sketcher.Constraint("Diameter", 15, Q("12 in")),
    Sketcher.Constraint("DistanceX", 1, 1, 1, 2, Q("17 in")),
    Sketcher.Constraint("DistanceY", 1, 2, 3, 2, Q("18 in")),
    Sketcher.Constraint("DistanceY", 6, 2, 1, 2, Q("18 in")),
    Sketcher.Constraint("DistanceY", 15, 3, 9, 2, Q("12 in")),
    Sketcher.Constraint("Angle", 9, Q("120 deg")),
    Sketcher.Constraint("DistanceX", 0, 2, 15, 3, Q("26 in")),
    Sketcher.Constraint("DistanceY", 15, 3, 0, 2, Q("88 in")),
    Sketcher.Constraint("DistanceX", 1, 2, 3, 2, Q("403 in")),
    Sketcher.Constraint("DistanceX", 15, 3, -1, 1, Q("192.5 in")),
    Sketcher.Constraint("DistanceX", 10, 2, 10, 1, Q("13.8564 in")),
    Sketcher.Constraint("DistanceX", 9, 2, -1, 1, Q("185.5718 in")),
])
sketch7.setExpression("Constraints[35]", "Params.sketch7_diameter")
sketch7.setExpression("Constraints[36]", "Params.sketch7_width")
pad6 = body.newObject("PartDesign::Pad", "Pad005")
pad6.Profile = sketch7
pad6.setExpression("Length", "Params.pad6_length")

# Sketch on XY plane
sketch8 = body.newObject("Sketcher::SketchObject", "Sketch007")
sketch8.AttachmentSupport = (doc.getObject("XY_Plane"), [""])
sketch8.MapMode = "FlatFace"
sketch8.addGeometry([
    Part.Circle(App.Vector(1778, 0, 0), App.Vector(0, 0, 1), 152.4),  # 0
    Part.Circle(App.Vector(-1778, 0, 0), App.Vector(0, 0, 1), 152.4),  # 1
    Part.Circle(App.Vector(-5334, 0, 0), App.Vector(0, 0, 1), 152.4),  # 2
    Part.Circle(App.Vector(-4889.5, -2451.1, 0), App.Vector(0, 0, 1), 152.4),  # 3
    Part.Circle(App.Vector(5334, 457.2, 0), App.Vector(0, 0, 1), 152.4),  # 4
    Part.Circle(App.Vector(5334, -457.2, 0), App.Vector(0, 0, 1), 152.4),  # 5
], False)
sketch8.addConstraint([
    Sketcher.Constraint("Equal", 0, 1),
    Sketcher.Constraint("Equal", 1, 2),
    Sketcher.Constraint("Equal", 2, 3),
    Sketcher.Constraint("Equal", 3, 4),
    Sketcher.Constraint("Equal", 4, 5),
    Sketcher.Constraint("Symmetric", 0, 3, 1, 3, -1, 1),
    Sketcher.Constraint("Symmetric", 4, 3, 5, 3, -1),
    Sketcher.Constraint("PointOnObject", 0, 3, -1),
    Sketcher.Constraint("PointOnObject", 2, 3, -1),
    Sketcher.Constraint("Diameter", 0, Q("12 in")),
    Sketcher.Constraint("DistanceY", -1, 1, 4, 3, Q("18 in")),
    Sketcher.Constraint("DistanceX", 1, 3, 0, 3, Q("140 in")),
    Sketcher.Constraint("DistanceX", 2, 3, 1, 3, Q("140 in")),
    Sketcher.Constraint("DistanceX", 0, 3, 4, 3, Q("140 in")),
    Sketcher.Constraint("DistanceX", 2, 3, 3, 3, Q("17.5 in")),
    Sketcher.Constraint("DistanceY", 3, 3, -1, 1, Q("96.5 in")),
])
sketch8.setExpression("Constraints[9]", "Params.sketch8_diameter")
pad7 = body.newObject("PartDesign::Pad", "Pad006")
pad7.Profile = sketch8
pad7.setExpression("Length", "Params.pad7_length")

doc.recompute()
